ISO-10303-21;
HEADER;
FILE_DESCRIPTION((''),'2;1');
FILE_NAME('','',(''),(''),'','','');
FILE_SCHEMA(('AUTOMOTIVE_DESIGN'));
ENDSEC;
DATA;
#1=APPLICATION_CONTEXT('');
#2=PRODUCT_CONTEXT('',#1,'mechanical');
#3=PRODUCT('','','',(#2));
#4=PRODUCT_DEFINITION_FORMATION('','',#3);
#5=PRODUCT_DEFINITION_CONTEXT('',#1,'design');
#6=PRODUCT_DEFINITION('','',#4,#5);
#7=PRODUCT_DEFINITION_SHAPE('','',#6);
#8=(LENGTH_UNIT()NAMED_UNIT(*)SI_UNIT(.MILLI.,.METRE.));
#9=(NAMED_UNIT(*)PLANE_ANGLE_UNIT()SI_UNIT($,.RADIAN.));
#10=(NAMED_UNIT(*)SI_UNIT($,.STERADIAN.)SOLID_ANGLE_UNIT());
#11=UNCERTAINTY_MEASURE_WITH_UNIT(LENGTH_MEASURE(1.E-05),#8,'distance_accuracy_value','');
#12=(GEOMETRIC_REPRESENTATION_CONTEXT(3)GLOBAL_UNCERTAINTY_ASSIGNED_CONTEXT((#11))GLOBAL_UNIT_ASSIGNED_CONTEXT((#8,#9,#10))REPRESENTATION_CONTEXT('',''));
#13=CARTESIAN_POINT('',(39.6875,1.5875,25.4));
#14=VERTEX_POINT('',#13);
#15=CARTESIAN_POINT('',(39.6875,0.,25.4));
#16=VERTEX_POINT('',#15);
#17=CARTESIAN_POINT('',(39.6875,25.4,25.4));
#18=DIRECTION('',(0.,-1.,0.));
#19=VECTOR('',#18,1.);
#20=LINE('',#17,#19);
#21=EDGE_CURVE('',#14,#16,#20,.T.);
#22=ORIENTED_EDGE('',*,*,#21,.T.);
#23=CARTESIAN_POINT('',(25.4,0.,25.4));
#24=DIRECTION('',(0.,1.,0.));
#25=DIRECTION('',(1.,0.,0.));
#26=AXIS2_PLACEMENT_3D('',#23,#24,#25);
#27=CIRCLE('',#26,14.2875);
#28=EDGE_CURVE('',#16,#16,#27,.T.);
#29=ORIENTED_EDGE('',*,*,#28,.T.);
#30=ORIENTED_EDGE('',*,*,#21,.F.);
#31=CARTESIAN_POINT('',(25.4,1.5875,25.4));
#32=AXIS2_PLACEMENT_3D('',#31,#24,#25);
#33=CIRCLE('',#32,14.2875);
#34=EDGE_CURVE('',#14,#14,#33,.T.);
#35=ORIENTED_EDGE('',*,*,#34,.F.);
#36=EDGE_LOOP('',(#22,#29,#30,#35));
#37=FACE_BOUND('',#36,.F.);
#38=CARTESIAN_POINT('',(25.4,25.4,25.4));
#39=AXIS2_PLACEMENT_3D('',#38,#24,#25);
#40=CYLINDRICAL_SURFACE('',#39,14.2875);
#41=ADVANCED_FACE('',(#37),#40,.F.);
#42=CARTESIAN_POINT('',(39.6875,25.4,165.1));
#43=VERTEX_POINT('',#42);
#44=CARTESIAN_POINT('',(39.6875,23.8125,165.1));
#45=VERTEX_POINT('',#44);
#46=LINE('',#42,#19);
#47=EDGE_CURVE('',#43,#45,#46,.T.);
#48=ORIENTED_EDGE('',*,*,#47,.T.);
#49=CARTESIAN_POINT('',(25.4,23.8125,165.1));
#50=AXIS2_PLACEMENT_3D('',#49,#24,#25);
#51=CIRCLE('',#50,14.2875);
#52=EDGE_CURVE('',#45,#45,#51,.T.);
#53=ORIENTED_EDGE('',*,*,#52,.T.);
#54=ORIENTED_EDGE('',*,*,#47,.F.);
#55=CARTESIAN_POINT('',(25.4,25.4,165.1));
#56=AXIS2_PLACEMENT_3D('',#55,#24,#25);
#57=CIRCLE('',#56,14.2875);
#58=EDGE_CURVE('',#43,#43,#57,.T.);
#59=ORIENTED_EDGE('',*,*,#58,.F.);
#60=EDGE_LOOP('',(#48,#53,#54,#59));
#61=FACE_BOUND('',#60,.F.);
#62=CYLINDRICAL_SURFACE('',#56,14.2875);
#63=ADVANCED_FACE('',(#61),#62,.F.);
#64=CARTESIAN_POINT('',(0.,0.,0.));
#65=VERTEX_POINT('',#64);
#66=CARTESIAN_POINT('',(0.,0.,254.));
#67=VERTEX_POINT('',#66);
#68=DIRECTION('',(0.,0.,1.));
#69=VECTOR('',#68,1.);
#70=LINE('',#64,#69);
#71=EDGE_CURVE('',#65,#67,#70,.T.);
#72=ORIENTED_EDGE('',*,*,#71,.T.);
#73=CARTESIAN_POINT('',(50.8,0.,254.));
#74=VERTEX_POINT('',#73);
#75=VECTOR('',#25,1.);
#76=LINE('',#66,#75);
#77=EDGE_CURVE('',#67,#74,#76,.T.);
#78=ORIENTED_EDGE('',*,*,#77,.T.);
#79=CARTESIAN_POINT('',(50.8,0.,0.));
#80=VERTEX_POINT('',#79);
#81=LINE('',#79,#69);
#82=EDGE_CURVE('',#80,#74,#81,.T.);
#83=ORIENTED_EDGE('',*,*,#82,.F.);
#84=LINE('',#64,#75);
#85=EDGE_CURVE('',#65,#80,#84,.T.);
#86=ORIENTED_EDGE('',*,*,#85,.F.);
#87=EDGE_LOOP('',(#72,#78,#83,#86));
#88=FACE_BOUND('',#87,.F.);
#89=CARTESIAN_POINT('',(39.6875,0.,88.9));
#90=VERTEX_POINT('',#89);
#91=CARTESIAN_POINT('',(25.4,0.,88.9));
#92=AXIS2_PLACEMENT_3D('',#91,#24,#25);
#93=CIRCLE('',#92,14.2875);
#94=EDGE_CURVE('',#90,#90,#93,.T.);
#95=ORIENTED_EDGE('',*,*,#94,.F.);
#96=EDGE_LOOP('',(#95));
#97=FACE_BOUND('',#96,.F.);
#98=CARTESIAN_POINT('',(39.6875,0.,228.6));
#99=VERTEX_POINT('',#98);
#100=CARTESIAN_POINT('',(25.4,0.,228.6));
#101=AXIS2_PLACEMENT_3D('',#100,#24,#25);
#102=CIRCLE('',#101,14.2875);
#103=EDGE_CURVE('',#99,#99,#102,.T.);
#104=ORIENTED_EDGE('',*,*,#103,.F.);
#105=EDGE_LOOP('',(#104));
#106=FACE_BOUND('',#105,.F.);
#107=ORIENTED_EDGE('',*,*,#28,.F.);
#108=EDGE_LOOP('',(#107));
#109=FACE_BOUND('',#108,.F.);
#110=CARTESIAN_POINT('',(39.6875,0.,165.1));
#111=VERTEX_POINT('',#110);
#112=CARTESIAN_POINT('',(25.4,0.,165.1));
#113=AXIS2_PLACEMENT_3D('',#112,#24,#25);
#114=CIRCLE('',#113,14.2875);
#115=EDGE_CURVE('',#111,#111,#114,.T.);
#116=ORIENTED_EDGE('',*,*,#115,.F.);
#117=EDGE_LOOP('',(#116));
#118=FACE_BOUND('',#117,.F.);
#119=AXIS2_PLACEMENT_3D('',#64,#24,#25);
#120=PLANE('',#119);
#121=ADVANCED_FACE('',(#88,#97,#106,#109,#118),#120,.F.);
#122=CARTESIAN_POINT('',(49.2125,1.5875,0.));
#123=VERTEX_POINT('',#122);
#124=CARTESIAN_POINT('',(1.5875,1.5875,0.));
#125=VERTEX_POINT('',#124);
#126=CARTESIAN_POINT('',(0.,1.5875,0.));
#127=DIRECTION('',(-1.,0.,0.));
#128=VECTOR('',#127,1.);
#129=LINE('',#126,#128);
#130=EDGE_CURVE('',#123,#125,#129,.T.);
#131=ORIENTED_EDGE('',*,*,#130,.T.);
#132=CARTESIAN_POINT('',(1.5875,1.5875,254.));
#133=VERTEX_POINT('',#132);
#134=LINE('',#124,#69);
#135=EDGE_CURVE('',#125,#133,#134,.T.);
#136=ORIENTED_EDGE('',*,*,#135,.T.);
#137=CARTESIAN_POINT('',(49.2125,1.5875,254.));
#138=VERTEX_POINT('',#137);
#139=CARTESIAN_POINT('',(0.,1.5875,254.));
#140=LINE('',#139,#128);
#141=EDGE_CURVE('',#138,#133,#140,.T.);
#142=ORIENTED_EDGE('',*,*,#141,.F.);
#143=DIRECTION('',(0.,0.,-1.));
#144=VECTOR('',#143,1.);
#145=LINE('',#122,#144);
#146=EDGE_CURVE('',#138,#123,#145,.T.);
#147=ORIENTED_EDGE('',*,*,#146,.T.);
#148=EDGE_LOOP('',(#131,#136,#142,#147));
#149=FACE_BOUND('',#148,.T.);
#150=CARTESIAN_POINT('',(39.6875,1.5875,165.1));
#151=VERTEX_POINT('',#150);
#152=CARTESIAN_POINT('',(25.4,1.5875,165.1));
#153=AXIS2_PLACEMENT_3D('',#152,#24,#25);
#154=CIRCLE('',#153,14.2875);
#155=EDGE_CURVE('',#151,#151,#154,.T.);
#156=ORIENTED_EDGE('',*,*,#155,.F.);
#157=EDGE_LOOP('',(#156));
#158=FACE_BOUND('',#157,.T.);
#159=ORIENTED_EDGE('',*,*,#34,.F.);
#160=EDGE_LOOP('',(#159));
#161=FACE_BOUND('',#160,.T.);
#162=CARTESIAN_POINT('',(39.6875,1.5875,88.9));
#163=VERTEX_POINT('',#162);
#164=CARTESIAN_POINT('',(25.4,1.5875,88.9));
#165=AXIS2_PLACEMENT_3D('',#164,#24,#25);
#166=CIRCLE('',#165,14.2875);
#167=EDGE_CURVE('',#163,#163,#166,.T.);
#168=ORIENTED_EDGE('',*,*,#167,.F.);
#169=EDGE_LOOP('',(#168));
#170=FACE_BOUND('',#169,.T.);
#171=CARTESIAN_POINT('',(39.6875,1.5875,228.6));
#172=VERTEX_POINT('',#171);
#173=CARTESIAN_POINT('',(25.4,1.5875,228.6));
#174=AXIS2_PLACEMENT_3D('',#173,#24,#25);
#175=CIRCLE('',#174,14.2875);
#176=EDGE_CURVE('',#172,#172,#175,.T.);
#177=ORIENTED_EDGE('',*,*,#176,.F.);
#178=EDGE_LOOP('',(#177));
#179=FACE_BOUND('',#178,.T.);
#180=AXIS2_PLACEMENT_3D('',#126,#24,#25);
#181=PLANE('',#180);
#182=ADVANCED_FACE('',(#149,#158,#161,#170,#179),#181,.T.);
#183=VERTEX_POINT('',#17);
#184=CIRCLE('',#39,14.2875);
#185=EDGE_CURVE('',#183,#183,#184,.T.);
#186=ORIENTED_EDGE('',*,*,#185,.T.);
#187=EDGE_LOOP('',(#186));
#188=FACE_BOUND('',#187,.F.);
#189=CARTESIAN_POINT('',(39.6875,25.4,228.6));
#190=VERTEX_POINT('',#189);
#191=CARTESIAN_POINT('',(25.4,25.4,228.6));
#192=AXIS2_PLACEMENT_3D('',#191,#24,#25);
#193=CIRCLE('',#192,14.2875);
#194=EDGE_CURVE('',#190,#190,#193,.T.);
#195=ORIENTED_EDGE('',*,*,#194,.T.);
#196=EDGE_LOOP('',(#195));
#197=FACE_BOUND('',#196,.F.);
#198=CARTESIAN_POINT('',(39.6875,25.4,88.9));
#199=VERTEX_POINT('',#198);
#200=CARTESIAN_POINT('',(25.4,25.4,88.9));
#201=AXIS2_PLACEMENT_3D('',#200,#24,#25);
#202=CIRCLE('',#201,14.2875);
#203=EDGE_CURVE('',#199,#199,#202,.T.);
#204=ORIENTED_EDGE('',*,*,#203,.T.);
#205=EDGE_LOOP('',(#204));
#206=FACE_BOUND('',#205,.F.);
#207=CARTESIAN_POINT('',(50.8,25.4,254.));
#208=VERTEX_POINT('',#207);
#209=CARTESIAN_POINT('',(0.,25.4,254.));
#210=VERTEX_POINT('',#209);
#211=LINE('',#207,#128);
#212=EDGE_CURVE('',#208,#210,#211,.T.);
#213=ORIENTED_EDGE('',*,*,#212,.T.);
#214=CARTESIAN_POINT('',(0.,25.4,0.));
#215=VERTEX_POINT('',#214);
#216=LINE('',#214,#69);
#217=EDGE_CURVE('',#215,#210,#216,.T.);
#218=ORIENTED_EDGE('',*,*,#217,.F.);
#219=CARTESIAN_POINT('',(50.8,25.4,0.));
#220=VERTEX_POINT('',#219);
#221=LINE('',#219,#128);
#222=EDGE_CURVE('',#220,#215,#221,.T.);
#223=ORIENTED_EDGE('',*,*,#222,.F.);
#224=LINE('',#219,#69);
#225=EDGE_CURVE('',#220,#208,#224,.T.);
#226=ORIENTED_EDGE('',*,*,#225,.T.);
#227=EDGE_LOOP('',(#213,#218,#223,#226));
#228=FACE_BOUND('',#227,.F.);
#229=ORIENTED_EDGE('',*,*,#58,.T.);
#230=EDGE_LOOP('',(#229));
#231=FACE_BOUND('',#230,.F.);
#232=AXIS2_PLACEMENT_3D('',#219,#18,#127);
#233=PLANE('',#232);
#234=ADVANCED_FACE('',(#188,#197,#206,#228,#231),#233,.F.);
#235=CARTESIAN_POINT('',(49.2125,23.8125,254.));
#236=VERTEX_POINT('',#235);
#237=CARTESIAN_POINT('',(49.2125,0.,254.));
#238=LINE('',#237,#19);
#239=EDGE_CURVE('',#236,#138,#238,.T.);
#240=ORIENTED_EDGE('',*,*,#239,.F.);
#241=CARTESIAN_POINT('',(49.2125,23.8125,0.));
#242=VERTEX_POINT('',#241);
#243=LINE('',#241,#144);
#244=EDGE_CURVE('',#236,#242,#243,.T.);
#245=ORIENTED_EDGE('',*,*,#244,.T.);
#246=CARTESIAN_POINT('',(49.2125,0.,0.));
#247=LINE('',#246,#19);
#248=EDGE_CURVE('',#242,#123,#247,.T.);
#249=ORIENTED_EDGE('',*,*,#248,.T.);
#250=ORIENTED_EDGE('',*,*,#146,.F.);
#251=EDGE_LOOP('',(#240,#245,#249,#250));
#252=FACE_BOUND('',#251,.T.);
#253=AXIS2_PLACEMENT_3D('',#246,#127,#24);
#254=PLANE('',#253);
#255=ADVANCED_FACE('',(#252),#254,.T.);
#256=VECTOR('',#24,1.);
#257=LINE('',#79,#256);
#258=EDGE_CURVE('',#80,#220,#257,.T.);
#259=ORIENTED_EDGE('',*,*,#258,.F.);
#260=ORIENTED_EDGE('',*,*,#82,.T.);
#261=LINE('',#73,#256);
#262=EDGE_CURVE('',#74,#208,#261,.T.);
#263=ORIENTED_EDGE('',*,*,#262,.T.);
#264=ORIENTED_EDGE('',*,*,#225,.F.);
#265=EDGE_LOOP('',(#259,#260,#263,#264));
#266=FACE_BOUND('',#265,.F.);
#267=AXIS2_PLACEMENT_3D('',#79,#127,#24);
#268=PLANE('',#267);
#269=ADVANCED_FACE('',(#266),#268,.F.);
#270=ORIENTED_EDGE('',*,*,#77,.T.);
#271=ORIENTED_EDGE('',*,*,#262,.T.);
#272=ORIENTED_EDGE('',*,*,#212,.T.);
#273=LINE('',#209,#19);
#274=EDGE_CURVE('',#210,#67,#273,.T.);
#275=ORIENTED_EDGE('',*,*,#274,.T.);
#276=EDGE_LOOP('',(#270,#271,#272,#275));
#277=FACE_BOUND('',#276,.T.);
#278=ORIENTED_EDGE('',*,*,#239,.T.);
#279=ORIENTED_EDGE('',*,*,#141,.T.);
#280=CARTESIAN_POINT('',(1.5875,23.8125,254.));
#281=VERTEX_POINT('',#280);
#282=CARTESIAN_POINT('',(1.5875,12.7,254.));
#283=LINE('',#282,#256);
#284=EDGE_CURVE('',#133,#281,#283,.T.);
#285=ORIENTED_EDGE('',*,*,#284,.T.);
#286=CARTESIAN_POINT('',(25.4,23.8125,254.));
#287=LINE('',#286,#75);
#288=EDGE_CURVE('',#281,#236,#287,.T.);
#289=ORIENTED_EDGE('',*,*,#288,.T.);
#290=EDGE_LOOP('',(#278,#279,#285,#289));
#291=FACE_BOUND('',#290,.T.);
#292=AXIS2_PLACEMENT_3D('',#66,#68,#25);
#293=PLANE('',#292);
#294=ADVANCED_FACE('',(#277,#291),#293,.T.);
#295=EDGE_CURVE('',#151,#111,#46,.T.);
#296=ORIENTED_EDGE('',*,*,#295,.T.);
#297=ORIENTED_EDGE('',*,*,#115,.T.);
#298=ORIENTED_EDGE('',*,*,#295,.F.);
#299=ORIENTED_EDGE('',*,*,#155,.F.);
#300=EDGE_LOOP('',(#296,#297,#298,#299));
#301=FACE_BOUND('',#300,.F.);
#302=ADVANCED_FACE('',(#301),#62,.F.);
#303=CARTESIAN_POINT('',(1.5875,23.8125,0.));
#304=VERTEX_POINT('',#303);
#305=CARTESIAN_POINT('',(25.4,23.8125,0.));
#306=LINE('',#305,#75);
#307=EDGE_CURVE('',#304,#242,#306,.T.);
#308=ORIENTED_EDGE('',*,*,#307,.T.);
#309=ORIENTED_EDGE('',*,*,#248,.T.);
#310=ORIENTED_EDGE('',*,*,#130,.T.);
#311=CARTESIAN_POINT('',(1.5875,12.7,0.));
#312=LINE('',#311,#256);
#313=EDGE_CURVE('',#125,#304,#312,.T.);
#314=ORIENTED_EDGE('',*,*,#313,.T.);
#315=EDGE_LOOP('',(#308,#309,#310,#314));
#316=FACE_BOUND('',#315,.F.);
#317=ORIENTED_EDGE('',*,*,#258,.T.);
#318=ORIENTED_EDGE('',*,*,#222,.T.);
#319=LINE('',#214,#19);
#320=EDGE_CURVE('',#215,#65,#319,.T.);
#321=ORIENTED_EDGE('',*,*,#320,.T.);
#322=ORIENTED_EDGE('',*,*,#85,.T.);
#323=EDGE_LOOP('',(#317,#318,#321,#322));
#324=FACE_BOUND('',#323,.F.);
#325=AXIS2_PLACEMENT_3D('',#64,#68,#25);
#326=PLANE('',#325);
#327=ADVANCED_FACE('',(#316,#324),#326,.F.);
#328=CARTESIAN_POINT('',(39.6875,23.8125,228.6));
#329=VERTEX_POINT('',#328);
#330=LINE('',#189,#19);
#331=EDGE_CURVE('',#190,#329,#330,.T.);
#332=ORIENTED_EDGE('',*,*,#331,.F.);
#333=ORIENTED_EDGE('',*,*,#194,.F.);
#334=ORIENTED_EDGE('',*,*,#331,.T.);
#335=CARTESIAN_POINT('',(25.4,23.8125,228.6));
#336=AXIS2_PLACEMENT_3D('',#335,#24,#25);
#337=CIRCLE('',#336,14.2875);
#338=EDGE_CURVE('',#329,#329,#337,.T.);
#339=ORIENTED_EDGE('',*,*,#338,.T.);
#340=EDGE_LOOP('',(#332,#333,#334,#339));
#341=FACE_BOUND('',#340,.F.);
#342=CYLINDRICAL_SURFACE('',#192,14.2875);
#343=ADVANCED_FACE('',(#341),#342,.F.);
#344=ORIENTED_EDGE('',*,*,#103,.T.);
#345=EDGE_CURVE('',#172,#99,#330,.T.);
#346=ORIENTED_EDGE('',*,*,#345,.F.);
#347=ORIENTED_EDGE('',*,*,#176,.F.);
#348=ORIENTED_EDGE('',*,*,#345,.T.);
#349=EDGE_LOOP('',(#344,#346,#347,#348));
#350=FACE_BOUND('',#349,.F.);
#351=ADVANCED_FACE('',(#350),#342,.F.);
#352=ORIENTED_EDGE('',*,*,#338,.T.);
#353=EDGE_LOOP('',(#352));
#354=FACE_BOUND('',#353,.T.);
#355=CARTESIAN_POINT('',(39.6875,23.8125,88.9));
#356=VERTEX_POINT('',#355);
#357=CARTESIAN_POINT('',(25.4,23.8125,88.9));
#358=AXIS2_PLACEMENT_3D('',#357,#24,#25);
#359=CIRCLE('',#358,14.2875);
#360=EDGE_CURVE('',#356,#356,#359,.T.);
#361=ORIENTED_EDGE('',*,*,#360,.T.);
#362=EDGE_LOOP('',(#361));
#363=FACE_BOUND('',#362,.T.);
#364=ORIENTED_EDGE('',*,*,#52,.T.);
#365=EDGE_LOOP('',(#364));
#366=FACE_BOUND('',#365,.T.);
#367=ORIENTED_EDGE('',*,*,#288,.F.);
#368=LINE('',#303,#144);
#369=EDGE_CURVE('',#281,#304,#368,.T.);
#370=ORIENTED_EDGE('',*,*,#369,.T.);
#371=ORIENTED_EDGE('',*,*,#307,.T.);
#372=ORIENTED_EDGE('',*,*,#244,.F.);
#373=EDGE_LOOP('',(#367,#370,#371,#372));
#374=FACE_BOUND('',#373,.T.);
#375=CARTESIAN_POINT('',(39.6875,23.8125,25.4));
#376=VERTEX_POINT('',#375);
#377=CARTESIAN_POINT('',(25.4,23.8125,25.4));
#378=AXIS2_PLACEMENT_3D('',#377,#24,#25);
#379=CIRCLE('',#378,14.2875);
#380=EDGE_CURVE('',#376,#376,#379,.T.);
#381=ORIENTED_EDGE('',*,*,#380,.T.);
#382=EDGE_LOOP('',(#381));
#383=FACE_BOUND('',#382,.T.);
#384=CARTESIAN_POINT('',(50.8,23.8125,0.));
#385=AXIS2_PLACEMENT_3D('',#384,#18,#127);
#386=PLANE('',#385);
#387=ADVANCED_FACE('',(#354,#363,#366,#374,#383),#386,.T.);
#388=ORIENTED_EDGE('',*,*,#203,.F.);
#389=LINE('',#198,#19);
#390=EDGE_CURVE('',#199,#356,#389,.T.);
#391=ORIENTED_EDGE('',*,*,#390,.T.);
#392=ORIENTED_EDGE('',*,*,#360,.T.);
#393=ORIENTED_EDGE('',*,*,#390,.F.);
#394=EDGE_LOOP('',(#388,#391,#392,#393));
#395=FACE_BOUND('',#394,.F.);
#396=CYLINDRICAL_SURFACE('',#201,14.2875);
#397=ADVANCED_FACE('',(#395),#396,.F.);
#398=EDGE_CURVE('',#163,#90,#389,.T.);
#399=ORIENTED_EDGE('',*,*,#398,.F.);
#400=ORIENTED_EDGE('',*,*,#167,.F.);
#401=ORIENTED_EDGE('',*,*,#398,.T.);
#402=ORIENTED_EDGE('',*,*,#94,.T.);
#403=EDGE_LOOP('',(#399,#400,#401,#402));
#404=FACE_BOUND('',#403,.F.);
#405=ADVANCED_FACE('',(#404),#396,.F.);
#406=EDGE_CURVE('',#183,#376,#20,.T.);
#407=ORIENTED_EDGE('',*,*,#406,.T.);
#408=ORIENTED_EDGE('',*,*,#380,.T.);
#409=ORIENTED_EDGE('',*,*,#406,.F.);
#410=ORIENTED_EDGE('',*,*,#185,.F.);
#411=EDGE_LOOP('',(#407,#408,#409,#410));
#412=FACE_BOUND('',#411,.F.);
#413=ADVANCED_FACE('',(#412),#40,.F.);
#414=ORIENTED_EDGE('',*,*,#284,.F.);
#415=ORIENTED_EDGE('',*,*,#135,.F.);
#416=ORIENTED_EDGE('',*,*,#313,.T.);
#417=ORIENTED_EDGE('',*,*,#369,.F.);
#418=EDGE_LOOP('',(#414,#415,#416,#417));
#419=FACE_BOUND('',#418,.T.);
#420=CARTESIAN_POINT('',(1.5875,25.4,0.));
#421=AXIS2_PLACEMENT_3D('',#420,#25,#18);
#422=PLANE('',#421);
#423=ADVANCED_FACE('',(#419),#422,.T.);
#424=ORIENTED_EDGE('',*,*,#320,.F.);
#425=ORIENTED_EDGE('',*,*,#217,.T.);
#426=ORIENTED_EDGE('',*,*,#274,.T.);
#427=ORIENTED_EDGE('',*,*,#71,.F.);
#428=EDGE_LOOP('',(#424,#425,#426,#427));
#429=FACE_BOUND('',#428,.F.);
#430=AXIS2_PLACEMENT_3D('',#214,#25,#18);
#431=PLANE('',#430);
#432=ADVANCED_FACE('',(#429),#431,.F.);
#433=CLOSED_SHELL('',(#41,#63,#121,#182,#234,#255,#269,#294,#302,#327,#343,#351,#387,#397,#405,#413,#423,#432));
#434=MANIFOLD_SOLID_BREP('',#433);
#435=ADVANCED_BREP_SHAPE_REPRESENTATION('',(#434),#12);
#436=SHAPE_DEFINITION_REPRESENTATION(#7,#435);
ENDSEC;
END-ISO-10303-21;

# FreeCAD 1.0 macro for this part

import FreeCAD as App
import Part
import Sketcher

V = App.Vector
Q = App.Units.Quantity


def faces_at(feature, points):
    """Names of the faces that lie closest to the given points."""
    faces = feature.Shape.Faces
    near = lambda p: min(range(len(faces)), key=lambda i: faces[i].distToShape(Part.Vertex(*p))[0])
    return sorted({f"Face{near(p) + 1}" for p in points})


def add_polygon(sketch, points):
    """Adds a closed chain of lines whose ends are joined by coincident constraints."""
    first, n = sketch.GeometryCount, len(points)
    for a, b in zip(points, points[1:] + points[:1]):
        sketch.addGeometry(Part.LineSegment(App.Vector(*a, 0), App.Vector(*b, 0)), False)
    for i in range(n):
        sketch.addConstraint(Sketcher.Constraint("Coincident", first + i, 2, first + (i + 1) % n, 1))

doc = App.newDocument("Part")
body = doc.addObject("PartDesign::Body", "Body")

# Sketch on XY plane
sketch1 = doc.addObject("Sketcher::SketchObject", "Sketch")
body.addObject(sketch1)
sketch1.AttachmentSupport = (doc.XY_Plane, [""])
sketch1.MapMode = "FlatFace"
add_polygon(sketch1, [(0, 25), (0, 0), (51, 0), (51, 25)])  # lines 0-3
sketch1.addConstraint([
    Sketcher.Constraint("Vertical", 0),
    Sketcher.Constraint("Horizontal", 1),
    Sketcher.Constraint("Vertical", 2),
    Sketcher.Constraint("Horizontal", 3),
    Sketcher.Constraint("Coincident", 0, 2, -1, 1),
    Sketcher.Constraint("DistanceX", 1, 1, 1, 2, Q("2 in")),
    Sketcher.Constraint("DistanceY", 0, 2, 0, 1, Q("1 in")),
])
pad1 = doc.addObject("PartDesign::Pad", "Pad")
body.addObject(pad1)
pad1.Profile = sketch1
pad1.Length = Q("10 in")
doc.recompute()

thickness = doc.addObject("PartDesign::Thickness", "Thickness")
body.addObject(thickness)
thickness.Base = (pad1, faces_at(pad1, [(16.933, 8.467, 0), (16.933, 8.467, 254)]))
thickness.Value = Q("0.0625 in")
thickness.Reversed = True
thickness.Join = "Intersection"

# Sketch on XZ plane
sketch2 = doc.addObject("Sketcher::SketchObject", "Sketch001")
body.addObject(sketch2)
sketch2.AttachmentSupport = (doc.XZ_Plane, [""])
sketch2.MapMode = "FlatFace"
sketch2.AttachmentOffset = App.Placement(V(0, 0, -1 * 25.4), App.Rotation())
sketch2.addGeometry([
    Part.Circle(V(25, 25, 0), V(0, 0, 1), 14),
    Part.Circle(V(25, 229, 0), V(0, 0, 1), 14),
    Part.Circle(V(25, 89, 0), V(0, 0, 1), 14),
    Part.Circle(V(25, 165, 0), V(0, 0, 1), 14),
], False)
sketch2.addConstraint([
    Sketcher.Constraint("Equal", 0, 1),
    Sketcher.Constraint("Equal", 1, 2),
    Sketcher.Constraint("Equal", 2, 3),
    Sketcher.Constraint("Vertical", 0, 3, 1, 3),
    Sketcher.Constraint("Vertical", 1, 3, 2, 3),
    Sketcher.Constraint("Vertical", 2, 3, 3, 3),
    Sketcher.Constraint("Diameter", 0, Q("1.125 in")),
    Sketcher.Constraint("DistanceX", -1, 1, 0, 3, Q("1 in")),
    Sketcher.Constraint("DistanceY", -1, 1, 0, 3, Q("1 in")),
    Sketcher.Constraint("DistanceY", 2, 3, 3, 3, Q("3 in")),
    Sketcher.Constraint("DistanceY", -1, 1, 2, 3, Q("3.5 in")),
    Sketcher.Constraint("DistanceY", -1, 1, 1, 3, Q("9 in")),
])
pocket1 = doc.addObject("PartDesign::Pocket", "Pocket")
body.addObject(pocket1)
pocket1.Profile = sketch2
pocket1.Type = "ThroughAll"
pocket1.Reversed = True

doc.recompute()
